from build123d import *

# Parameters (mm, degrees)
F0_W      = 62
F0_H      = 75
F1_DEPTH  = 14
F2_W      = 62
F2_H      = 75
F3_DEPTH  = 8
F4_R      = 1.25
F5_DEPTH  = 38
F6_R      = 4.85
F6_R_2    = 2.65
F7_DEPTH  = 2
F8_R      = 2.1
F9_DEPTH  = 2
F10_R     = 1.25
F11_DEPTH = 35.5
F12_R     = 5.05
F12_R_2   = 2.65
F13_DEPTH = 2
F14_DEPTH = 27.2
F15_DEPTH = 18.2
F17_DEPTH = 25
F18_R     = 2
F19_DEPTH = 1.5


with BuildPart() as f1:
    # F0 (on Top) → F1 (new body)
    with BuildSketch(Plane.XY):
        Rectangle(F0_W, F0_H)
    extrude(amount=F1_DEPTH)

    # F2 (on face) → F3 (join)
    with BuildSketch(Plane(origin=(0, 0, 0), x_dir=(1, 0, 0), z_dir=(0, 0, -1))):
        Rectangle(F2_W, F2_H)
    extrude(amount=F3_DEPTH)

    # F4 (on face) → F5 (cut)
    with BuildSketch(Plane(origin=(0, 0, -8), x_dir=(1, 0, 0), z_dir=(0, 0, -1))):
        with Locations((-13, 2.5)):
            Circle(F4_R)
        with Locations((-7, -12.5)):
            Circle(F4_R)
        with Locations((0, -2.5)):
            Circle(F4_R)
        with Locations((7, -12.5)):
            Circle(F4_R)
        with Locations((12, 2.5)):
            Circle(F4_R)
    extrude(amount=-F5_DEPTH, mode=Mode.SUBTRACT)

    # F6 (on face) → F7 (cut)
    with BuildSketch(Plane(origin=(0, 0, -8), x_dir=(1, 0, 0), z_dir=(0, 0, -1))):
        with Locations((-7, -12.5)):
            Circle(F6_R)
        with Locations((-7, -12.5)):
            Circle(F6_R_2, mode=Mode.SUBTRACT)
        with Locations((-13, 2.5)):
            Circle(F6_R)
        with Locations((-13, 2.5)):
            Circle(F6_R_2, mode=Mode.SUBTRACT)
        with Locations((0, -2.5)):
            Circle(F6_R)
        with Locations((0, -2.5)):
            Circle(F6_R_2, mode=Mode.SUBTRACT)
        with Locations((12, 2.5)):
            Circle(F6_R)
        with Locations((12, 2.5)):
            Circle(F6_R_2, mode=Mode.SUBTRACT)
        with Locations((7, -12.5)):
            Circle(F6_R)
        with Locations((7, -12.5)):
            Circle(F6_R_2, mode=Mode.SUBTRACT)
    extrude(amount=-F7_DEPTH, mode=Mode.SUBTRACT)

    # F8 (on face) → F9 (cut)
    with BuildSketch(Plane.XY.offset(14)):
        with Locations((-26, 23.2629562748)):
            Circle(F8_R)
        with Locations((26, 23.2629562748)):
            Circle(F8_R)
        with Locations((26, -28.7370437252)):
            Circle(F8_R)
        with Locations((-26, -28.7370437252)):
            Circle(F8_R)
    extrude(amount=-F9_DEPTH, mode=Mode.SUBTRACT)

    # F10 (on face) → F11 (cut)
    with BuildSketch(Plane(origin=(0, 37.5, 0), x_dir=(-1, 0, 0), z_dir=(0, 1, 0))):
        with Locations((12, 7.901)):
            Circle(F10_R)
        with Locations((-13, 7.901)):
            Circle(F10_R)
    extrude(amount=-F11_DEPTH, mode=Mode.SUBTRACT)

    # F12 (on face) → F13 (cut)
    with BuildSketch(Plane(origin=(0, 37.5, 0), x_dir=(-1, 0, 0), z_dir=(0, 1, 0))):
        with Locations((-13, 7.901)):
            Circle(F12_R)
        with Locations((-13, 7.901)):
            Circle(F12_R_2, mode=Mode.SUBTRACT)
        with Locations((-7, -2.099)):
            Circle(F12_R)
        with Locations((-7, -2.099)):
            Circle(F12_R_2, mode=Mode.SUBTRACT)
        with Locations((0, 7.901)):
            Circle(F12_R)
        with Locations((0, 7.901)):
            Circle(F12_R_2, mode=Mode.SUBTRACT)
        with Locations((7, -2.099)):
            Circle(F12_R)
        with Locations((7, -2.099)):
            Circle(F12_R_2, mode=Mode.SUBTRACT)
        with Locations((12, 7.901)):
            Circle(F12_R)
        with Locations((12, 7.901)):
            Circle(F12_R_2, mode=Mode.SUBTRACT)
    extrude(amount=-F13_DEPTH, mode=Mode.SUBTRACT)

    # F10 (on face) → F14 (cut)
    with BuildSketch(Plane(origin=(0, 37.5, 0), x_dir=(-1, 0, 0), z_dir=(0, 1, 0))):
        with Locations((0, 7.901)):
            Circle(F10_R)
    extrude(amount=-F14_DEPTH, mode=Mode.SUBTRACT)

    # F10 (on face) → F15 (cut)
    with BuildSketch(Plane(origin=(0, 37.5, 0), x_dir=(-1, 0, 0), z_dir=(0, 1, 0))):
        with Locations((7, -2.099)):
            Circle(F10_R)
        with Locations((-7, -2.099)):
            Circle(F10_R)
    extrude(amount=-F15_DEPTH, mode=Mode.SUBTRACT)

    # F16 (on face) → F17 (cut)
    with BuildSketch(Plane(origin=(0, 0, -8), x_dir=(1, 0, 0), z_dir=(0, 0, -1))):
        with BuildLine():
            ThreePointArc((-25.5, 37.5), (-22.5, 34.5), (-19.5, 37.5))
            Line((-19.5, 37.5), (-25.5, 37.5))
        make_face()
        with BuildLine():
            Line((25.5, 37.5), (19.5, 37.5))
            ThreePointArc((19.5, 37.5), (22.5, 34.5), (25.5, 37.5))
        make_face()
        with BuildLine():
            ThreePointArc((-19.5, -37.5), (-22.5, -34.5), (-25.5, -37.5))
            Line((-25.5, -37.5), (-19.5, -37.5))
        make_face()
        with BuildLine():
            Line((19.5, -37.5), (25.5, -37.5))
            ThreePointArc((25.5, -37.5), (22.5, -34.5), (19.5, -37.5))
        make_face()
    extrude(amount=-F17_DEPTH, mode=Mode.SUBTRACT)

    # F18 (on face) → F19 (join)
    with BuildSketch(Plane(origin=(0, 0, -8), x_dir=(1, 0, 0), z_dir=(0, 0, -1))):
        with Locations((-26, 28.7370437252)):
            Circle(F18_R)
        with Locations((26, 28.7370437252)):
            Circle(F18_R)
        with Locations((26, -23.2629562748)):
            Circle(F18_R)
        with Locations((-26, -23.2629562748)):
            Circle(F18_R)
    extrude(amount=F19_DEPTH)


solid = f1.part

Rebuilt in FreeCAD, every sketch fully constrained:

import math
import FreeCAD as App
import Part
import Sketcher
from FreeCAD import Vector
Q = App.Units.Quantity

doc = App.newDocument("Part")
body = doc.addObject("PartDesign::Body", "Body")

# Sketch on XY plane
sketch1 = doc.addObject("Sketcher::SketchObject", "Sketch")
body.addObject(sketch1)
sketch1.AttachmentSupport = (doc.XY_Plane, [""])
sketch1.MapMode = "FlatFace"
sketch1.addGeometry([
    Part.LineSegment(Vector(-31, 38, 0), Vector(-31, -38, 0)),
    Part.LineSegment(Vector(-31, -38, 0), Vector(31, -38, 0)),
    Part.LineSegment(Vector(31, -38, 0), Vector(31, 38, 0)),
    Part.LineSegment(Vector(31, 38, 0), Vector(-31, 38, 0)),
], False)
sketch1.addConstraint([
    Sketcher.Constraint("Coincident", 0, 2, 1, 1),
    Sketcher.Constraint("Coincident", 1, 2, 2, 1),
    Sketcher.Constraint("Coincident", 2, 2, 3, 1),
    Sketcher.Constraint("Coincident", 3, 2, 0, 1),
    Sketcher.Constraint("Vertical", 0),
    Sketcher.Constraint("Horizontal", 1),
    Sketcher.Constraint("Vertical", 2),
    Sketcher.Constraint("Horizontal", 3),
    Sketcher.Constraint("Symmetric", 0, 2, 2, 2, -1, 1),
    Sketcher.Constraint("DistanceX", 1, 1, 1, 2, Q("62 mm")),
    Sketcher.Constraint("DistanceY", 0, 2, 0, 1, Q("75 mm")),
])
pad1 = doc.addObject("PartDesign::Pad", "Pad")
body.addObject(pad1)
pad1.Profile = sketch1
pad1.Length = 14

# Sketch on XY plane
sketch2 = doc.addObject("Sketcher::SketchObject", "Sketch001")
body.addObject(sketch2)
sketch2.AttachmentSupport = (doc.XY_Plane, [""])
sketch2.MapMode = "FlatFace"
sketch2.addGeometry([
    Part.LineSegment(Vector(-31, -38, 0), Vector(-31, 38, 0)),
    Part.LineSegment(Vector(-31, 38, 0), Vector(31, 38, 0)),
    Part.LineSegment(Vector(31, 38, 0), Vector(31, -38, 0)),
    Part.LineSegment(Vector(31, -38, 0), Vector(-31, -38, 0)),
], False)
sketch2.addConstraint([
    Sketcher.Constraint("Coincident", 0, 2, 1, 1),
    Sketcher.Constraint("Coincident", 1, 2, 2, 1),
    Sketcher.Constraint("Coincident", 2, 2, 3, 1),
    Sketcher.Constraint("Coincident", 3, 2, 0, 1),
    Sketcher.Constraint("Vertical", 0),
    Sketcher.Constraint("Horizontal", 1),
    Sketcher.Constraint("Vertical", 2),
    Sketcher.Constraint("Horizontal", 3),
    Sketcher.Constraint("Symmetric", 0, 2, 2, 2, -1, 1),
    Sketcher.Constraint("DistanceX", 1, 1, 1, 2, Q("62 mm")),
    Sketcher.Constraint("DistanceY", 0, 1, 0, 2, Q("75 mm")),
])
pad2 = doc.addObject("PartDesign::Pad", "Pad001")
body.addObject(pad2)
pad2.Profile = sketch2
pad2.Length = 8
pad2.Reversed = True

# Sketch on XY plane
sketch3 = doc.addObject("Sketcher::SketchObject", "Sketch002")
body.addObject(sketch3)
sketch3.AttachmentSupport = (doc.XY_Plane, [""])
sketch3.MapMode = "FlatFace"
sketch3.AttachmentOffset = App.Placement(Vector(0, 0, -8), App.Rotation())
sketch3.addGeometry([
    Part.Circle(Vector(-13, -2.5, 0), Vector(0, 0, 1), 1.2),  # 0
    Part.Circle(Vector(-7, 12.5, 0), Vector(0, 0, 1), 1.2),  # 1
    Part.Circle(Vector(0, 2.5, 0), Vector(0, 0, 1), 1.2),  # 2
    Part.Circle(Vector(7, 12.5, 0), Vector(0, 0, 1), 1.2),  # 3
    Part.Circle(Vector(12, -2.5, 0), Vector(0, 0, 1), 1.2),  # 4
], False)
sketch3.addConstraint([
    Sketcher.Constraint("Equal", 0, 1),
    Sketcher.Constraint("Equal", 1, 2),
    Sketcher.Constraint("Equal", 2, 3),
    Sketcher.Constraint("Equal", 3, 4),
    Sketcher.Constraint("Symmetric", 1, 3, 3, 3, -2),
    Sketcher.Constraint("PointOnObject", 2, 3, -2),
    Sketcher.Constraint("Horizontal", 0, 3, 4, 3),
    Sketcher.Constraint("Diameter", 0, Q("2.5 mm")),
    Sketcher.Constraint("DistanceX", 0, 3, -1, 1, Q("13 mm")),
    Sketcher.Constraint("DistanceX", 1, 3, -1, 1, Q("7 mm")),
    Sketcher.Constraint("DistanceX", -1, 1, 4, 3, Q("12 mm")),
    Sketcher.Constraint("DistanceY", 0, 3, 1, 3, Q("15 mm")),
    Sketcher.Constraint("DistanceY", 2, 3, 1, 3, Q("10 mm")),
    Sketcher.Constraint("DistanceY", 0, 3, -1, 1, Q("2.5 mm")),
])
pocket1 = doc.addObject("PartDesign::Pocket", "Pocket")
body.addObject(pocket1)
pocket1.Profile = sketch3
pocket1.Length = 38
pocket1.Reversed = True

# Sketch on XY plane
sketch4 = doc.addObject("Sketcher::SketchObject", "Sketch003")
body.addObject(sketch4)
sketch4.AttachmentSupport = (doc.XY_Plane, [""])
sketch4.MapMode = "FlatFace"
sketch4.AttachmentOffset = App.Placement(Vector(0, 0, -8), App.Rotation())
sketch4.addGeometry([
    Part.Circle(Vector(-7, 12.5, 0), Vector(0, 0, 1), 4.8),  # 0
    Part.Circle(Vector(-7, 12.5, 0), Vector(0, 0, 1), 2.6),  # 1
    Part.Circle(Vector(-13, -2.5, 0), Vector(0, 0, 1), 4.8),  # 2
    Part.Circle(Vector(-13, -2.5, 0), Vector(0, 0, 1), 2.6),  # 3
    Part.Circle(Vector(0, 2.5, 0), Vector(0, 0, 1), 4.8),  # 4
    Part.Circle(Vector(0, 2.5, 0), Vector(0, 0, 1), 2.6),  # 5
    Part.Circle(Vector(12, -2.5, 0), Vector(0, 0, 1), 4.8),  # 6
    Part.Circle(Vector(12, -2.5, 0), Vector(0, 0, 1), 2.6),  # 7
    Part.Circle(Vector(7, 12.5, 0), Vector(0, 0, 1), 4.8),  # 8
    Part.Circle(Vector(7, 12.5, 0), Vector(0, 0, 1), 2.6),  # 9
], False)
sketch4.addConstraint([
    Sketcher.Constraint("Coincident", 1, 3, 0, 3),
    Sketcher.Constraint("Coincident", 3, 3, 2, 3),
    Sketcher.Constraint("Coincident", 5, 3, 4, 3),
    Sketcher.Constraint("Coincident", 7, 3, 6, 3),
    Sketcher.Constraint("Coincident", 9, 3, 8, 3),
    Sketcher.Constraint("Equal", 0, 2),
    Sketcher.Constraint("Equal", 1, 3),
    Sketcher.Constraint("Equal", 2, 4),
    Sketcher.Constraint("Equal", 3, 5),
    Sketcher.Constraint("Equal", 4, 6),
    Sketcher.Constraint("Equal", 5, 7),
    Sketcher.Constraint("Equal", 6, 8),
    Sketcher.Constraint("Equal", 7, 9),
    Sketcher.Constraint("Symmetric", 0, 3, 8, 3, -2),
    Sketcher.Constraint("PointOnObject", 4, 3, -2),
    Sketcher.Constraint("Horizontal", 3, 3, 6, 3),
    Sketcher.Constraint("Diameter", 0, Q("9.7 mm")),
    Sketcher.Constraint("Diameter", 1, Q("5.3 mm")),
    Sketcher.Constraint("DistanceX", 0, 3, -1, 1, Q("7 mm")),
    Sketcher.Constraint("DistanceX", 2, 3, -1, 1, Q("13 mm")),
    Sketcher.Constraint("DistanceX", -1, 1, 6, 3, Q("12 mm")),
    Sketcher.Constraint("DistanceY", 2, 3, 0, 3, Q("15 mm")),
    Sketcher.Constraint("DistanceY", 4, 3, 0, 3, Q("10 mm")),
    Sketcher.Constraint("DistanceY", -1, 1, 0, 3, Q("12.5 mm")),
])
pocket2 = doc.addObject("PartDesign::Pocket", "Pocket001")
body.addObject(pocket2)
pocket2.Profile = sketch4
pocket2.Length = 2
pocket2.Reversed = True

# Sketch on XY plane
sketch5 = doc.addObject("Sketcher::SketchObject", "Sketch004")
body.addObject(sketch5)
sketch5.AttachmentSupport = (doc.XY_Plane, [""])
sketch5.MapMode = "FlatFace"
sketch5.AttachmentOffset = App.Placement(Vector(0, 0, 14), App.Rotation())
sketch5.addGeometry([
    Part.Circle(Vector(-26, 23.3, 0), Vector(0, 0, 1), 2.1),
    Part.Circle(Vector(26, 23.3, 0), Vector(0, 0, 1), 2.1),
    Part.Circle(Vector(26, -28.7, 0), Vector(0, 0, 1), 2.1),
    Part.Circle(Vector(-26, -28.7, 0), Vector(0, 0, 1), 2.1),
], False)
sketch5.addConstraint([
    Sketcher.Constraint("Equal", 0, 1),
    Sketcher.Constraint("Equal", 1, 2),
    Sketcher.Constraint("Equal", 2, 3),
    Sketcher.Constraint("Symmetric", 0, 3, 1, 3, -2),
    Sketcher.Constraint("Symmetric", 2, 3, 3, 3, -2),
    Sketcher.Constraint("Vertical", 1, 3, 2, 3),
    Sketcher.Constraint("Diameter", 0, Q("4.2 mm")),
    Sketcher.Constraint("DistanceX", 0, 3, -1, 1, Q("26 mm")),
    Sketcher.Constraint("DistanceY", 2, 3, 1, 3, Q("52 mm")),
    Sketcher.Constraint("DistanceY", -1, 1, 0, 3, Q("23.262956 mm")),
])
pocket3 = doc.addObject("PartDesign::Pocket", "Pocket002")
body.addObject(pocket3)
pocket3.Profile = sketch5
pocket3.Length = 2

# Sketch on XZ plane
sketch6 = doc.addObject("Sketcher::SketchObject", "Sketch005")
body.addObject(sketch6)
sketch6.AttachmentSupport = (doc.XZ_Plane, [""])
sketch6.MapMode = "FlatFace"
sketch6.AttachmentOffset = App.Placement(Vector(0, 0, -37.5), App.Rotation())
sketch6.addGeometry([
    Part.Circle(Vector(-12, 7.9, 0), Vector(0, 0, 1), 1.2),
    Part.Circle(Vector(13, 7.9, 0), Vector(0, 0, 1), 1.2),
], False)
sketch6.addConstraint([
    Sketcher.Constraint("Equal", 0, 1),
    Sketcher.Constraint("Horizontal", 0, 3, 1, 3),
    Sketcher.Constraint("Diameter", 0, Q("2.5 mm")),
    Sketcher.Constraint("DistanceX", 0, 3, -1, 1, Q("12 mm")),
    Sketcher.Constraint("DistanceX", -1, 1, 1, 3, Q("13 mm")),
    Sketcher.Constraint("DistanceY", -1, 1, 0, 3, Q("7.901 mm")),
])
pocket4 = doc.addObject("PartDesign::Pocket", "Pocket003")
body.addObject(pocket4)
pocket4.Profile = sketch6
pocket4.Length = 35.5
pocket4.Reversed = True

# Sketch on XZ plane
sketch7 = doc.addObject("Sketcher::SketchObject", "Sketch006")
body.addObject(sketch7)
sketch7.AttachmentSupport = (doc.XZ_Plane, [""])
sketch7.MapMode = "FlatFace"
sketch7.AttachmentOffset = App.Placement(Vector(0, 0, -37.5), App.Rotation())
sketch7.addGeometry([
    Part.Circle(Vector(13, 7.9, 0), Vector(0, 0, 1), 5),  # 0
    Part.Circle(Vector(13, 7.9, 0), Vector(0, 0, 1), 2.6),  # 1
    Part.Circle(Vector(7, -2.1, 0), Vector(0, 0, 1), 5),  # 2
    Part.Circle(Vector(7, -2.1, 0), Vector(0, 0, 1), 2.6),  # 3
    Part.Circle(Vector(0, 7.9, 0), Vector(0, 0, 1), 5),  # 4
    Part.Circle(Vector(0, 7.9, 0), Vector(0, 0, 1), 2.6),  # 5
    Part.Circle(Vector(-7, -2.1, 0), Vector(0, 0, 1), 5),  # 6
    Part.Circle(Vector(-7, -2.1, 0), Vector(0, 0, 1), 2.6),  # 7
    Part.Circle(Vector(-12, 7.9, 0), Vector(0, 0, 1), 5),  # 8
    Part.Circle(Vector(-12, 7.9, 0), Vector(0, 0, 1), 2.6),  # 9
], False)
sketch7.addConstraint([
    Sketcher.Constraint("Coincident", 1, 3, 0, 3),
    Sketcher.Constraint("Coincident", 3, 3, 2, 3),
    Sketcher.Constraint("Coincident", 5, 3, 4, 3),
    Sketcher.Constraint("Coincident", 7, 3, 6, 3),
    Sketcher.Constraint("Coincident", 9, 3, 8, 3),
    Sketcher.Constraint("Equal", 0, 2),
    Sketcher.Constraint("Equal", 1, 3),
    Sketcher.Constraint("Equal", 2, 4),
    Sketcher.Constraint("Equal", 3, 5),
    Sketcher.Constraint("Equal", 4, 6),
    Sketcher.Constraint("Equal", 5, 7),
    Sketcher.Constraint("Equal", 6, 8),
    Sketcher.Constraint("Equal", 7, 9),
    Sketcher.Constraint("Symmetric", 2, 3, 6, 3, -2),
    Sketcher.Constraint("PointOnObject", 4, 3, -2),
    Sketcher.Constraint("Horizontal", 1, 3, 4, 3),
    Sketcher.Constraint("Horizontal", 5, 3, 8, 3),
    Sketcher.Constraint("Diameter", 0, Q("10.1 mm")),
    Sketcher.Constraint("Diameter", 1, Q("5.3 mm")),
    Sketcher.Constraint("DistanceX", -1, 1, 0, 3, Q("13 mm")),
    Sketcher.Constraint("DistanceX", -1, 1, 2, 3, Q("7 mm")),
    Sketcher.Constraint("DistanceX", 8, 3, -1, 1, Q("12 mm")),
    Sketcher.Constraint("DistanceY", 2, 3, 0, 3, Q("10 mm")),
    Sketcher.Constraint("DistanceY", -1, 1, 0, 3, Q("7.901 mm")),
])
pocket5 = doc.addObject("PartDesign::Pocket", "Pocket004")
body.addObject(pocket5)
pocket5.Profile = sketch7
pocket5.Length = 2
pocket5.Reversed = True

# Sketch on XZ plane
sketch8 = doc.addObject("Sketcher::SketchObject", "Sketch007")
body.addObject(sketch8)
sketch8.AttachmentSupport = (doc.XZ_Plane, [""])
sketch8.MapMode = "FlatFace"
sketch8.AttachmentOffset = App.Placement(Vector(0, 0, -37.5), App.Rotation())
sketch8.addGeometry(Part.Circle(Vector(0, 7.9, 0), Vector(0, 0, 1), 1.2), False)
sketch8.addConstraint([
    Sketcher.Constraint("PointOnObject", 0, 3, -2),
    Sketcher.Constraint("Diameter", 0, Q("2.5 mm")),
    Sketcher.Constraint("DistanceY", -1, 1, 0, 3, Q("7.901 mm")),
])
pocket6 = doc.addObject("PartDesign::Pocket", "Pocket005")
body.addObject(pocket6)
pocket6.Profile = sketch8
pocket6.Length = 27.2
pocket6.Reversed = True

# Sketch on XZ plane
sketch9 = doc.addObject("Sketcher::SketchObject", "Sketch008")
body.addObject(sketch9)
sketch9.AttachmentSupport = (doc.XZ_Plane, [""])
sketch9.MapMode = "FlatFace"
sketch9.AttachmentOffset = App.Placement(Vector(0, 0, -37.5), App.Rotation())
sketch9.addGeometry([
    Part.Circle(Vector(-7, -2.1, 0), Vector(0, 0, 1), 1.2),
    Part.Circle(Vector(7, -2.1, 0), Vector(0, 0, 1), 1.2),
], False)
sketch9.addConstraint([
    Sketcher.Constraint("Equal", 0, 1),
    Sketcher.Constraint("Symmetric", 0, 3, 1, 3, -2),
    Sketcher.Constraint("Diameter", 0, Q("2.5 mm")),
    Sketcher.Constraint("DistanceX", 0, 3, -1, 1, Q("7 mm")),
    Sketcher.Constraint("DistanceY", 0, 3, -1, 1, Q("2.099 mm")),
])
pocket7 = doc.addObject("PartDesign::Pocket", "Pocket006")
body.addObject(pocket7)
pocket7.Profile = sketch9
pocket7.Length = 18.2
pocket7.Reversed = True

# Sketch on XY plane
sketch10 = doc.addObject("Sketcher::SketchObject", "Sketch009")
body.addObject(sketch10)
sketch10.AttachmentSupport = (doc.XY_Plane, [""])
sketch10.MapMode = "FlatFace"
sketch10.AttachmentOffset = App.Placement(Vector(0, 0, -8), App.Rotation())
sketch10.addGeometry([
    Part.ArcOfCircle(Part.Circle(Vector(-22.5, -37.5, 0), Vector(0, 0, 1), 3), math.radians(0), math.radians(180)),  # 0
    Part.LineSegment(Vector(-19.5, -37.5, 0), Vector(-25.5, -37.5, 0)),  # 1
    Part.LineSegment(Vector(25.5, -37.5, 0), Vector(19.5, -37.5, 0)),  # 2
    Part.ArcOfCircle(Part.Circle(Vector(22.5, -37.5, 0), Vector(0, 0, 1), 3), math.radians(0), math.radians(180)),  # 3
    Part.ArcOfCircle(Part.Circle(Vector(-22.5, 37.5, 0), Vector(0, 0, 1), 3), math.radians(180), math.radians(360)),  # 4
    Part.LineSegment(Vector(-25.5, 37.5, 0), Vector(-19.5, 37.5, 0)),  # 5
    Part.LineSegment(Vector(19.5, 37.5, 0), Vector(25.5, 37.5, 0)),  # 6
    Part.ArcOfCircle(Part.Circle(Vector(22.5, 37.5, 0), Vector(0, 0, 1), 3), math.radians(180), math.radians(360)),  # 7
], False)
sketch10.addConstraint([
    Sketcher.Constraint("Coincident", 0, 1, 1, 1),
    Sketcher.Constraint("Coincident", 1, 2, 0, 2),
    Sketcher.Constraint("Coincident", 2, 1, 3, 1),
    Sketcher.Constraint("Coincident", 3, 2, 2, 2),
    Sketcher.Constraint("Coincident", 4, 1, 5, 1),
    Sketcher.Constraint("Coincident", 5, 2, 4, 2),
    Sketcher.Constraint("Coincident", 6, 1, 7, 1),
    Sketcher.Constraint("Coincident", 7, 2, 6, 2),
    Sketcher.Constraint("Horizontal", 1),
    Sketcher.Constraint("Horizontal", 2),
    Sketcher.Constraint("Horizontal", 5),
    Sketcher.Constraint("Horizontal", 6),
    Sketcher.Constraint("Equal", 0, 3),
    Sketcher.Constraint("Equal", 3, 4),
    Sketcher.Constraint("Equal", 4, 7),
    Sketcher.Constraint("Symmetric", 3, 3, 4, 3, -1, 1),
    Sketcher.Constraint("Symmetric", 0, 3, 7, 3, -1, 1),
    Sketcher.Constraint("Symmetric", 0, 3, 3, 3, -2),
    Sketcher.Constraint("Horizontal", 3, 3, 0, 1),
    Sketcher.Constraint("Horizontal", 1, 2, 2, 1),
    Sketcher.Constraint("Horizontal", 7, 3, 4, 1),
    Sketcher.Constraint("Horizontal", 5, 2, 6, 1),
    Sketcher.Constraint("Radius", 0, Q("3 mm")),
    Sketcher.Constraint("DistanceX", 0, 3, 3, 3, Q("45 mm")),
    Sketcher.Constraint("DistanceY", 0, 3, 4, 3, Q("75 mm")),
])
pocket8 = doc.addObject("PartDesign::Pocket", "Pocket007")
body.addObject(pocket8)
pocket8.Profile = sketch10
pocket8.Length = 25
pocket8.Reversed = True

# Sketch on XY plane
sketch11 = doc.addObject("Sketcher::SketchObject", "Sketch010")
body.addObject(sketch11)
sketch11.AttachmentSupport = (doc.XY_Plane, [""])
sketch11.MapMode = "FlatFace"
sketch11.AttachmentOffset = App.Placement(Vector(0, 0, -8), App.Rotation())
sketch11.addGeometry([
    Part.Circle(Vector(-26, -28.7, 0), Vector(0, 0, 1), 2),
    Part.Circle(Vector(26, -28.7, 0), Vector(0, 0, 1), 2),
    Part.Circle(Vector(26, 23.3, 0), Vector(0, 0, 1), 2),
    Part.Circle(Vector(-26, 23.3, 0), Vector(0, 0, 1), 2),
], False)
sketch11.addConstraint([
    Sketcher.Constraint("Equal", 0, 1),
    Sketcher.Constraint("Equal", 1, 2),
    Sketcher.Constraint("Equal", 2, 3),
    Sketcher.Constraint("Symmetric", 0, 3, 1, 3, -2),
    Sketcher.Constraint("Symmetric", 2, 3, 3, 3, -2),
    Sketcher.Constraint("Vertical", 1, 3, 2, 3),
    Sketcher.Constraint("Diameter", 0, Q("4 mm")),
    Sketcher.Constraint("DistanceX", 0, 3, -1, 1, Q("26 mm")),
    Sketcher.Constraint("DistanceY", 1, 3, 2, 3, Q("52 mm")),
    Sketcher.Constraint("DistanceY", 0, 3, -1, 1, Q("28.737044 mm")),
])
pad3 = doc.addObject("PartDesign::Pad", "Pad002")
body.addObject(pad3)
pad3.Profile = sketch11
pad3.Length = 1.5
pad3.Reversed = True

doc.recompute()
